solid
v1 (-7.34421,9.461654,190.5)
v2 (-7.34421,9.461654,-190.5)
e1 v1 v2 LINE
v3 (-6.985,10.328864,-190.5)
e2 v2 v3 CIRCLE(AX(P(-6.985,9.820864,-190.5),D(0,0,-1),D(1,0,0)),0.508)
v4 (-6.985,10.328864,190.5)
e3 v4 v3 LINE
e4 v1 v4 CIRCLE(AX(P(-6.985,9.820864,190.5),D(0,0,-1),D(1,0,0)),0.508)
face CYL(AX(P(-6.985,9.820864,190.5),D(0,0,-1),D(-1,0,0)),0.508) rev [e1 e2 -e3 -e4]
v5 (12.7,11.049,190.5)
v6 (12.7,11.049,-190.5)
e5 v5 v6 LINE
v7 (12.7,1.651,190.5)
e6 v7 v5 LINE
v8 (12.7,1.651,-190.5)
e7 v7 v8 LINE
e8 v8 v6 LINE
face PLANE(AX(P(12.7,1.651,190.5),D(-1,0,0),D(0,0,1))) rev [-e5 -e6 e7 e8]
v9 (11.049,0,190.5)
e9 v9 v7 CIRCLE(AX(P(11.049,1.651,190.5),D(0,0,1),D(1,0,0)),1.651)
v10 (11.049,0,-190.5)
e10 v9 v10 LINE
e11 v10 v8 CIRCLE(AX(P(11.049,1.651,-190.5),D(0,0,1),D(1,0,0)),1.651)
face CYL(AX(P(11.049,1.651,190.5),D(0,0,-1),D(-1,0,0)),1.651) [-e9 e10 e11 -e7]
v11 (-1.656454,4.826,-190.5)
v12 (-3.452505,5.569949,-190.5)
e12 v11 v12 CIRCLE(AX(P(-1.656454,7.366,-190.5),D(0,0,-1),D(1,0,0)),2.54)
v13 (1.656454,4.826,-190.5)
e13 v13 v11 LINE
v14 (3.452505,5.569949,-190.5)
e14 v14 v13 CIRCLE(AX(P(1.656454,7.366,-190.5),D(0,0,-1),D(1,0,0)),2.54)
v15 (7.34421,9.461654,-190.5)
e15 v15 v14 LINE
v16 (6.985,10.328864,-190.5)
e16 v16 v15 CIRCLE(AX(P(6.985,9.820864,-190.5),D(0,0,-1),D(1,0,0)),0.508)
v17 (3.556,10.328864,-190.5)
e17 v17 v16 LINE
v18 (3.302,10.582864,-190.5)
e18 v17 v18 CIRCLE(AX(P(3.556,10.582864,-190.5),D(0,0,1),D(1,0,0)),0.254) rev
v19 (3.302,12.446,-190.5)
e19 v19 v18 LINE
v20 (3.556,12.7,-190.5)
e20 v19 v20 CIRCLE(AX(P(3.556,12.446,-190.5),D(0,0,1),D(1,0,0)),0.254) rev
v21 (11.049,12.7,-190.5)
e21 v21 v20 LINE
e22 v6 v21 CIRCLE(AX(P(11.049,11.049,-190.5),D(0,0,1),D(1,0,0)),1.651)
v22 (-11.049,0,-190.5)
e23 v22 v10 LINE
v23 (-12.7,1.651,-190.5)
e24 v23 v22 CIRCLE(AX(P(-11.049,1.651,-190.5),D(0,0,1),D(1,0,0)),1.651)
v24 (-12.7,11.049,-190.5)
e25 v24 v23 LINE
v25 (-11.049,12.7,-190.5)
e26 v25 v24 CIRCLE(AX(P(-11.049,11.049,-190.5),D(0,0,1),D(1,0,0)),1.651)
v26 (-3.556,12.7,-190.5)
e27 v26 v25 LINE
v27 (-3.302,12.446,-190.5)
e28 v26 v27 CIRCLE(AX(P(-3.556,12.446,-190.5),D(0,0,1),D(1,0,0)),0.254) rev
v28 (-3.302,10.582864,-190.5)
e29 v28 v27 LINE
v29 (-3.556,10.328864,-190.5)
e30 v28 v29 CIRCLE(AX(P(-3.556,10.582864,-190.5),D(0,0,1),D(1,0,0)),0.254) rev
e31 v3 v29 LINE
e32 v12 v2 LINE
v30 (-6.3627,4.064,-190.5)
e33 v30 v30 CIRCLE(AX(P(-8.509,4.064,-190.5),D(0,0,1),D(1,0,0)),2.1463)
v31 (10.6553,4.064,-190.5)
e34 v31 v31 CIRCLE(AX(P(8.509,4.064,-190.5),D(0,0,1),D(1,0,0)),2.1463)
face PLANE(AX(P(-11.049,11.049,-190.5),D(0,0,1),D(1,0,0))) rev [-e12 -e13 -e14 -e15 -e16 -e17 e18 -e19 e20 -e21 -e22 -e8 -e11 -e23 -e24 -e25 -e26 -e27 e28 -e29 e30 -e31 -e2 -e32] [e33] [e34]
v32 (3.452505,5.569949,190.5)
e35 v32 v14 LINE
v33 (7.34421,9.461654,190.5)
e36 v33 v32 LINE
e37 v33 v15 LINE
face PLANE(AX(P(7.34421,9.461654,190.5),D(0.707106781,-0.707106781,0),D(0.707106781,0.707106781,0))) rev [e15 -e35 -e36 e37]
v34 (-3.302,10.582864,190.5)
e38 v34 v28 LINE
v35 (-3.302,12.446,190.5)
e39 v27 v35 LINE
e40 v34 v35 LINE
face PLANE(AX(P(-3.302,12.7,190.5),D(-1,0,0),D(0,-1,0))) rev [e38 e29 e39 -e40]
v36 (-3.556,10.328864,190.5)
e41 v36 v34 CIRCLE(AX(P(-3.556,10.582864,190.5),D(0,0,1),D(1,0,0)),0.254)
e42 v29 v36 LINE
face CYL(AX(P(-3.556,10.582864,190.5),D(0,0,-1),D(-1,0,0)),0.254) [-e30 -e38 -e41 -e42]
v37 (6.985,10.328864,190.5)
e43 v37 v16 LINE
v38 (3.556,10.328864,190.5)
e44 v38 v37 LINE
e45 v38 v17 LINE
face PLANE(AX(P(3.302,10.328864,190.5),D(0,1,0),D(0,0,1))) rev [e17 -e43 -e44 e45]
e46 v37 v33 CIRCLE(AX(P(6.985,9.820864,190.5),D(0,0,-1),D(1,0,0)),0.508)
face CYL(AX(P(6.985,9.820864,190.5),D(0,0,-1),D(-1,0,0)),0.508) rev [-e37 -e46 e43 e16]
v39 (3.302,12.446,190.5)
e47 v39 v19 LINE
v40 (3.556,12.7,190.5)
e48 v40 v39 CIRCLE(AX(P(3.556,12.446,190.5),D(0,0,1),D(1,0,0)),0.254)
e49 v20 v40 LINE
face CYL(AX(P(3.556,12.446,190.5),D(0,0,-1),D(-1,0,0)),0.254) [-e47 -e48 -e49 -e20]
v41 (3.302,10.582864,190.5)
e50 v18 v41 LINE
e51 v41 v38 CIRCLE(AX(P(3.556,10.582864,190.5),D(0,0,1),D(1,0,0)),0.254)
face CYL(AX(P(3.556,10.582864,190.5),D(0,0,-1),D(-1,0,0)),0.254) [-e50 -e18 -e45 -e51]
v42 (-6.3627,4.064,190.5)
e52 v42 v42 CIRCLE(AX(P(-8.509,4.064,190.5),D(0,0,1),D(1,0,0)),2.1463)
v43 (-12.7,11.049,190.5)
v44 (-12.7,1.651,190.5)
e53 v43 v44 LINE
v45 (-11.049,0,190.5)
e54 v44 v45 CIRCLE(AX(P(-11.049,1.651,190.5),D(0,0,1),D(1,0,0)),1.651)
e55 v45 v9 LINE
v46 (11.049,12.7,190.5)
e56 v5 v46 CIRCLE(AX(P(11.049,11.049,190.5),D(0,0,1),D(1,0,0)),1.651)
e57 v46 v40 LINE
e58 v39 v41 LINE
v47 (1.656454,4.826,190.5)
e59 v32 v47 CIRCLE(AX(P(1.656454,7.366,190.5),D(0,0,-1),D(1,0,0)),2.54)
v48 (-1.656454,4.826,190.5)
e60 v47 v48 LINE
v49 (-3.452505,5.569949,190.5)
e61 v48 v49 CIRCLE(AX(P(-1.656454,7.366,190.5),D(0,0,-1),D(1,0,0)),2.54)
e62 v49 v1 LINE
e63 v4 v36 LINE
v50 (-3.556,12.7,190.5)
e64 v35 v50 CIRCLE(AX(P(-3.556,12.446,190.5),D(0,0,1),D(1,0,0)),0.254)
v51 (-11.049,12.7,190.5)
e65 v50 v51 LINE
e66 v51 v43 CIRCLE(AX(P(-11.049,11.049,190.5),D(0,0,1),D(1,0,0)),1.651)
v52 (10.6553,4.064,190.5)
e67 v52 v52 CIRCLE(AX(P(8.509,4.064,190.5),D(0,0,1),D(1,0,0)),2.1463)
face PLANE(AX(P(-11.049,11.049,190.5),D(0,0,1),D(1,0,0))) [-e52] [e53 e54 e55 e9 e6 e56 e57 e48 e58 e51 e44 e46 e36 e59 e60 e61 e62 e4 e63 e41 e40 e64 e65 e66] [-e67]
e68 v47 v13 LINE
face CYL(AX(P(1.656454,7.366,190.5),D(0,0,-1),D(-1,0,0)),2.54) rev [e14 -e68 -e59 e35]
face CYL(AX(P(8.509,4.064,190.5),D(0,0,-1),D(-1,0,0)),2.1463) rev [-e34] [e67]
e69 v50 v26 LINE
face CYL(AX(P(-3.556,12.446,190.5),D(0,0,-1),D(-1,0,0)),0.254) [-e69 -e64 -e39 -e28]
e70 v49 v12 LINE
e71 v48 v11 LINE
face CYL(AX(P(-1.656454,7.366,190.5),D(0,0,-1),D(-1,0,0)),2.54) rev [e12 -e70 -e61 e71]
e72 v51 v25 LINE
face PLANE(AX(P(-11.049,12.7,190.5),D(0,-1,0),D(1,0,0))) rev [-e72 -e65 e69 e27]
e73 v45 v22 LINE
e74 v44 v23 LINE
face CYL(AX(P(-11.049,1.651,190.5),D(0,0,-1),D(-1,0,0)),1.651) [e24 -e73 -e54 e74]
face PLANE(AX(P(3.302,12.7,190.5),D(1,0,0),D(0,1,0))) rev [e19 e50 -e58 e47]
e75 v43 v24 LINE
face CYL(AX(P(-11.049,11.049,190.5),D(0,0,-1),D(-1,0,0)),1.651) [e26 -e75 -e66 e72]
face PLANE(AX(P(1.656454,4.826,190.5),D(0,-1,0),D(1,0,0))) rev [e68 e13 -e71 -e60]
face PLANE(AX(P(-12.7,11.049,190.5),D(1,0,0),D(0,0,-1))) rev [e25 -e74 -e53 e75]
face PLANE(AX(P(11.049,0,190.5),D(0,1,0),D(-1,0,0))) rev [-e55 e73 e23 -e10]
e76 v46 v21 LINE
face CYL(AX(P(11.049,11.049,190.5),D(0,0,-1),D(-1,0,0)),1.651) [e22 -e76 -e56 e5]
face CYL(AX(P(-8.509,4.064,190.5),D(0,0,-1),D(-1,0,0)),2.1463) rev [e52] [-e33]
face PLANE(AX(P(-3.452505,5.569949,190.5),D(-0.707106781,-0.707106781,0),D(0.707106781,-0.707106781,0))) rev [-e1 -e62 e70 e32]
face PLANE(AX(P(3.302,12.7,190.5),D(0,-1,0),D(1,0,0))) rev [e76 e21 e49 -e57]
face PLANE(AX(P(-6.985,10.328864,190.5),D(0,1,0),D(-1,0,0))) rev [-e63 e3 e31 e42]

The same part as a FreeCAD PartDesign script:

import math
import FreeCAD as App
import Part
import Sketcher
from FreeCAD import Vector
Q = App.Units.Quantity


def edges_at(feature, points):
    """Names of the edges that pass closest to the given points."""
    edges = feature.Shape.Edges
    near = lambda p: min(range(len(edges)), key=lambda i: edges[i].distToShape(Part.Vertex(*p))[0])
    return sorted({f"Edge{near(p) + 1}" for p in points})

doc = App.newDocument("Part")
body = doc.addObject("PartDesign::Body", "Body")

sketch1 = body.newObject("Sketcher::SketchObject", "Sketch")
sketch1.AttachmentSupport = (doc.getObject("XY_Plane"), [""])
sketch1.MapMode = "FlatFace"
sketch1.addGeometry([
    Part.LineSegment(Vector(-3.3, 12.7, 0), Vector(-11, 12.7, 0)),
    Part.ArcOfCircle(Part.Circle(Vector(-11, 11, 0), Vector(0, 0, 1), 1.7), math.radians(90), math.radians(180)),
    Part.LineSegment(Vector(-12.7, 11, 0), Vector(-12.7, 1.7, 0)),
    Part.ArcOfCircle(Part.Circle(Vector(-11, 1.7, 0), Vector(0, 0, 1), 1.7), math.radians(180), math.radians(270)),
    Part.LineSegment(Vector(-11, 0, 0), Vector(11, 0, 0)),
    Part.ArcOfCircle(Part.Circle(Vector(11, 1.7, 0), Vector(0, 0, 1), 1.7), math.radians(-90), math.radians(0)),
    Part.LineSegment(Vector(12.7, 1.7, 0), Vector(12.7, 11, 0)),
    Part.ArcOfCircle(Part.Circle(Vector(11, 11, 0), Vector(0, 0, 1), 1.7), math.radians(0), math.radians(90)),
    Part.LineSegment(Vector(11, 12.7, 0), Vector(3.3, 12.7, 0)),
    Part.LineSegment(Vector(3.3, 12.7, 0), Vector(3.3, 10.3, 0)),
    Part.LineSegment(Vector(3.3, 10.3, 0), Vector(7, 10.3, 0)),
    Part.ArcOfCircle(Part.Circle(Vector(7, 9.8, 0), Vector(0, 0, 1), 0.5), math.radians(-45), math.radians(90)),
    Part.LineSegment(Vector(7.3, 9.5, 0), Vector(3.5, 5.6, 0)),
    Part.ArcOfCircle(Part.Circle(Vector(1.7, 7.4, 0), Vector(0, 0, 1), 2.5), math.radians(-90), math.radians(-45)),
    Part.LineSegment(Vector(1.7, 4.8, 0), Vector(-1.7, 4.8, 0)),
    Part.ArcOfCircle(Part.Circle(Vector(-1.7, 7.4, 0), Vector(0, 0, 1), 2.5), math.radians(-135), math.radians(-90)),
    Part.LineSegment(Vector(-3.5, 5.6, 0), Vector(-7.3, 9.5, 0)),
    Part.ArcOfCircle(Part.Circle(Vector(-7, 9.8, 0), Vector(0, 0, 1), 0.5), math.radians(90), math.radians(225)),
    Part.LineSegment(Vector(-7, 10.3, 0), Vector(-3.3, 10.3, 0)),
    Part.LineSegment(Vector(-3.3, 10.3, 0), Vector(-3.3, 12.7, 0)),
    Part.Circle(Vector(8.5, 4.1, 0), Vector(0, 0, 1), 2.1),
    Part.Circle(Vector(-8.5, 4.1, 0), Vector(0, 0, 1), 2.1),
], False)
sketch1.addConstraint([
    Sketcher.Constraint("Tangent", 0, 2, 1, 1),
    Sketcher.Constraint("Tangent", 1, 2, 2, 1),
    Sketcher.Constraint("Tangent", 2, 2, 3, 1),
    Sketcher.Constraint("Tangent", 3, 2, 4, 1),
    Sketcher.Constraint("Tangent", 4, 2, 5, 1),
    Sketcher.Constraint("Tangent", 5, 2, 6, 1),
    Sketcher.Constraint("Tangent", 6, 2, 7, 1),
    Sketcher.Constraint("Tangent", 7, 2, 8, 1),
    Sketcher.Constraint("Coincident", 8, 2, 9, 1),
    Sketcher.Constraint("Coincident", 9, 2, 10, 1),
    Sketcher.Constraint("Tangent", 10, 2, 11, 2),
    Sketcher.Constraint("Tangent", 11, 1, 12, 1),
    Sketcher.Constraint("Tangent", 12, 2, 13, 2),
    Sketcher.Constraint("Tangent", 13, 1, 14, 1),
    Sketcher.Constraint("Tangent", 14, 2, 15, 2),
    Sketcher.Constraint("Tangent", 15, 1, 16, 1),
    Sketcher.Constraint("Tangent", 16, 2, 17, 2),
    Sketcher.Constraint("Tangent", 17, 1, 18, 1),
    Sketcher.Constraint("Coincident", 18, 2, 19, 1),
    Sketcher.Constraint("Coincident", 19, 2, 0, 1),
    Sketcher.Constraint("Horizontal", 0),
    Sketcher.Constraint("Vertical", 2),
    Sketcher.Constraint("Horizontal", 4),
    Sketcher.Constraint("Vertical", 6),
    Sketcher.Constraint("Horizontal", 8),
    Sketcher.Constraint("Vertical", 9),
    Sketcher.Constraint("Horizontal", 10),
    Sketcher.Constraint("Horizontal", 14),
    Sketcher.Constraint("Horizontal", 18),
    Sketcher.Constraint("Vertical", 19),
    Sketcher.Constraint("Equal", 1, 3),
    Sketcher.Constraint("Equal", 3, 5),
    Sketcher.Constraint("Equal", 5, 7),
    Sketcher.Constraint("Equal", 13, 15),
    Sketcher.Constraint("Equal", 11, 17),
    Sketcher.Constraint("Equal", 20, 21),
    Sketcher.Constraint("Symmetric", 3, 2, 4, 2, -1, 1),
    Sketcher.Constraint("Symmetric", 11, 3, 17, 3, -2),
    Sketcher.Constraint("Symmetric", 20, 3, 21, 3, -2),
    Sketcher.Constraint("Symmetric", 8, 2, 19, 2, -2),
    Sketcher.Constraint("Perpendicular", 12, 16),
    Sketcher.Constraint("Horizontal", 12, 2, 15, 1),
    Sketcher.Constraint("Radius", 13, Q("0.1 in")),
    Sketcher.Constraint("Radius", 11, Q("0.02 in")),
    Sketcher.Constraint("Diameter", 20, Q("0.169 in")),
    Sketcher.Constraint("Radius", 1, Q("0.065 in")),
    Sketcher.Constraint("DistanceX", 4, 1, 4, 2, Q("0.87 in")),
    Sketcher.Constraint("DistanceY", 2, 2, 2, 1, Q("0.37 in")),
    Sketcher.Constraint("DistanceX", 20, 3, 5, 3, Q("0.1 in")),
    Sketcher.Constraint("DistanceX", 0, 2, 0, 1, Q("0.305 in")),
    Sketcher.Constraint("DistanceX", 10, 1, 10, 2, Q("0.145 in")),
    Sketcher.Constraint("DistanceY", -1, 1, 13, 3, Q("0.29 in")),
    Sketcher.Constraint("DistanceY", -1, 1, 20, 3, Q("0.16 in")),
    Sketcher.Constraint("Distance", 12, 5.503702),
])
pad1 = body.newObject("PartDesign::Pad", "Pad")
pad1.Profile = sketch1
pad1.Length = Q("15 in")
pad1.Midplane = True
doc.recompute()

fillet = body.newObject("PartDesign::Fillet", "Fillet")
fillet.Base = (pad1, edges_at(pad1, [
    (-3.302, 12.7, 0),
    (-3.302, 10.329, 0),
    (3.302, 10.329, 0),
    (3.302, 12.7, 0),
]))
fillet.Radius = Q("0.01 in")

doc.recompute()
